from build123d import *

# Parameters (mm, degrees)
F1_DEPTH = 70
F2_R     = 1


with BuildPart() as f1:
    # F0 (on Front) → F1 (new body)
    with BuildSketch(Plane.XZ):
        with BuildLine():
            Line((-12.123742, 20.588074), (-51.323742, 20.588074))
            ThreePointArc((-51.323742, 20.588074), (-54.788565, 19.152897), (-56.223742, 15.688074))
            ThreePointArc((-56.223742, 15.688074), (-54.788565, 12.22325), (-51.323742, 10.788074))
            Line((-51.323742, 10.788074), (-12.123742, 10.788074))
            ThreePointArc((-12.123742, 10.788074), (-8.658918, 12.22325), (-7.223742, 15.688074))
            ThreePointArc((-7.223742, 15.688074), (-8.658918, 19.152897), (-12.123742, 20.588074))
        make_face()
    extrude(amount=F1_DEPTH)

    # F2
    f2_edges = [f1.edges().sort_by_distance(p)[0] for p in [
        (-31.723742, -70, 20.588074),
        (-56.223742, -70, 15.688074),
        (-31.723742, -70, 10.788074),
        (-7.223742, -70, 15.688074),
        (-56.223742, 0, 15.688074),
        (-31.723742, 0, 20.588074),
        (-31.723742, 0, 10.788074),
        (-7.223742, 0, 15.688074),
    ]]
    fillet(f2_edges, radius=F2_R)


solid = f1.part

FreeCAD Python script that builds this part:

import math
import FreeCAD as App
import Part
import Sketcher

V = App.Vector


def edges_at(feature, points):
    """Names of the edges that pass closest to the given points."""
    edges = feature.Shape.Edges
    near = lambda p: min(range(len(edges)), key=lambda i: edges[i].distToShape(Part.Vertex(*p))[0])
    return sorted({f"Edge{near(p) + 1}" for p in points})

doc = App.newDocument("Part")
body = doc.addObject("PartDesign::Body", "Body")

sketch1 = body.newObject("Sketcher::SketchObject", "Sketch")
sketch1.AttachmentSupport = (doc.getObject("XZ_Plane"), [""])
sketch1.MapMode = "FlatFace"
sketch1.addGeometry([
    Part.LineSegment(V(-12.1, 20.6, 0), V(-51.3, 20.6, 0)),
    Part.ArcOfCircle(Part.Circle(V(-51.3, 15.7, 0), V(0, 0, 1), 4.9), math.radians(90), math.radians(180)),
    Part.ArcOfCircle(Part.Circle(V(-51.3, 15.7, 0), V(0, 0, 1), 4.9), math.radians(180), math.radians(270)),
    Part.LineSegment(V(-51.3, 10.8, 0), V(-12.1, 10.8, 0)),
    Part.ArcOfCircle(Part.Circle(V(-12.1, 15.7, 0), V(0, 0, 1), 4.9), math.radians(-90), math.radians(0)),
    Part.ArcOfCircle(Part.Circle(V(-12.1, 15.7, 0), V(0, 0, 1), 4.9), math.radians(0), math.radians(90)),
], False)
sketch1.addConstraint([
    Sketcher.Constraint("Tangent", 0, 2, 1, 1),
    Sketcher.Constraint("Tangent", 1, 2, 2, 1),
    Sketcher.Constraint("Tangent", 2, 2, 3, 1),
    Sketcher.Constraint("Tangent", 3, 2, 4, 1),
    Sketcher.Constraint("Tangent", 4, 2, 5, 1),
    Sketcher.Constraint("Tangent", 5, 2, 0, 1),
    Sketcher.Constraint("Horizontal", 0),
    Sketcher.Constraint("Horizontal", 3),
    Sketcher.Constraint("Equal", 1, 2),
    Sketcher.Constraint("Equal", 2, 4),
    Sketcher.Constraint("Horizontal", 5, 3, 1, 2),
    Sketcher.Constraint("Horizontal", 1, 2, 4, 2),
    Sketcher.Constraint("Radius", 1, 4.900001),
    Sketcher.Constraint("DistanceX", 0, 2, 0, 1, 39.2),
    Sketcher.Constraint("DistanceX", 1, 3, -1, 1, 51.323741),
    Sketcher.Constraint("DistanceY", -1, 1, 4, 3, 15.688071),
])
pad1 = body.newObject("PartDesign::Pad", "Pad")
pad1.Profile = sketch1
pad1.Length = 70
doc.recompute()

fillet = body.newObject("PartDesign::Fillet", "Fillet")
fillet.Base = (pad1, edges_at(pad1, [
    (-31.724, -70, 20.588),
    (-56.224, -35, 15.688),
    (-31.724, -70, 10.788),
    (-7.224, -35, 15.688),
    (-56.224, -35, 15.688),
    (-31.724, 0, 20.588),
    (-31.724, 0, 10.788),
    (-7.224, -35, 15.688),
]))
fillet.Radius = 1

doc.recompute()
